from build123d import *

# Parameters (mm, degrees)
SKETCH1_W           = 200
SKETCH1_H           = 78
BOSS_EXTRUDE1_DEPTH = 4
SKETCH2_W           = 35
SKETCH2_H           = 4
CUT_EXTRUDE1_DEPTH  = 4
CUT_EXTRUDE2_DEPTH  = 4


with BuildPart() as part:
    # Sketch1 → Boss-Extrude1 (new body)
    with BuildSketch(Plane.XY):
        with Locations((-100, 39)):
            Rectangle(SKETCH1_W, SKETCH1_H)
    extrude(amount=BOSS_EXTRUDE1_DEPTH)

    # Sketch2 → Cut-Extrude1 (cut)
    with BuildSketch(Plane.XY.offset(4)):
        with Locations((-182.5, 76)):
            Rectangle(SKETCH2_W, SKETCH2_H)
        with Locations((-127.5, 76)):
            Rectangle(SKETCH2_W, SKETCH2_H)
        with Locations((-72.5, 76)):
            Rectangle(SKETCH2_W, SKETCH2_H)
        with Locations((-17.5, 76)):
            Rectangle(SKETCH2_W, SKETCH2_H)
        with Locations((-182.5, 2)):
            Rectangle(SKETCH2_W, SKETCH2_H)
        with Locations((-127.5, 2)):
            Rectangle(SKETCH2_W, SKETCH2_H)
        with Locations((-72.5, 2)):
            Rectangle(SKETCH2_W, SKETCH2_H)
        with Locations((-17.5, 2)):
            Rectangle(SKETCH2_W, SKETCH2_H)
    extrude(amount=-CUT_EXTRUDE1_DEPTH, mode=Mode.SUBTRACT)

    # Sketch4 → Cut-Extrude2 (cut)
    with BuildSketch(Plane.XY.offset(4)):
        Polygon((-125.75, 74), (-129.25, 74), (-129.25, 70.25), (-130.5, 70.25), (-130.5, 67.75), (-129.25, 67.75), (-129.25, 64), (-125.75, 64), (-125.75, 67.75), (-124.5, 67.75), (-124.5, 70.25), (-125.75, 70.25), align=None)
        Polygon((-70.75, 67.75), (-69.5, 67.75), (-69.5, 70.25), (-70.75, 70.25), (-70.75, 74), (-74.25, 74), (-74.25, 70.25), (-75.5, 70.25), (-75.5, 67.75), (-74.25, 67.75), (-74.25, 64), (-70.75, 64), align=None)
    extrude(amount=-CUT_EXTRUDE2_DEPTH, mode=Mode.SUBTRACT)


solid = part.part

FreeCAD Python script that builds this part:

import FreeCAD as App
import Part
import Sketcher

V = App.Vector


def add_polygon(sketch, points):
    """Adds a closed chain of lines whose ends are joined by coincident constraints."""
    first, n = sketch.GeometryCount, len(points)
    for a, b in zip(points, points[1:] + points[:1]):
        sketch.addGeometry(Part.LineSegment(App.Vector(*a, 0), App.Vector(*b, 0)), False)
    for i in range(n):
        sketch.addConstraint(Sketcher.Constraint("Coincident", first + i, 2, first + (i + 1) % n, 1))

doc = App.newDocument("Part")
params = doc.addObject("Spreadsheet::Sheet", "Params")
for row, (alias, value) in enumerate([
    ("sketch1_width", "200 mm"),
    ("sketch1_height", "78 mm"),
    ("pad1_length", "4 mm"),
    ("sketch2_width", "35 mm"),
    ("sketch2_height", "4 mm"),
    ("pocket1_length", "4 mm"),
    ("sketch3_width", "3.5 mm"),
    ("sketch3_height", "2.5 mm"),
    ("pocket2_length", "4 mm"),
], start=1):
    params.set(f"A{row}", alias)
    params.set(f"B{row}", "=" + value)
    params.setAlias(f"B{row}", alias)

body = doc.addObject("PartDesign::Body", "Body")

# Sketch on XY plane
sketch1 = body.newObject("Sketcher::SketchObject", "Sketch")
sketch1.AttachmentSupport = (doc.getObject("XY_Plane"), [""])
sketch1.MapMode = "FlatFace"
add_polygon(sketch1, [(-200, 78), (-200, 0), (0, 0), (0, 78)])  # lines 0-3
sketch1.addConstraint([
    Sketcher.Constraint("Vertical", 0),
    Sketcher.Constraint("Horizontal", 1),
    Sketcher.Constraint("Vertical", 2),
    Sketcher.Constraint("Horizontal", 3),
    Sketcher.Constraint("Coincident", 1, 2, -1, 1),
    Sketcher.Constraint("DistanceX", 1, 1, 1, 2, 200.0),
    Sketcher.Constraint("DistanceY", 0, 2, 0, 1, 78.0),
])
sketch1.setExpression("Constraints[9]", "Params.sketch1_width")
sketch1.setExpression("Constraints[10]", "Params.sketch1_height")
pad1 = body.newObject("PartDesign::Pad", "Pad")
pad1.Profile = sketch1
pad1.setExpression("Length", "Params.pad1_length")

# Sketch on XY plane
sketch2 = body.newObject("Sketcher::SketchObject", "Sketch001")
sketch2.AttachmentSupport = (doc.getObject("XY_Plane"), [""])
sketch2.MapMode = "FlatFace"
sketch2.AttachmentOffset = App.Placement(V(0, 0, 4), App.Rotation())
add_polygon(sketch2, [(-200, 78), (-200, 74), (-165, 74), (-165, 78)])  # lines 0-3
add_polygon(sketch2, [(-145, 78), (-145, 74), (-110, 74), (-110, 78)])  # lines 4-7
add_polygon(sketch2, [(-90, 78), (-90, 74), (-55, 74), (-55, 78)])  # lines 8-11
add_polygon(sketch2, [(-35, 78), (-35, 74), (0, 74), (0, 78)])  # lines 12-15
add_polygon(sketch2, [(-200, 4), (-200, 0), (-165, 0), (-165, 4)])  # lines 16-19
add_polygon(sketch2, [(-145, 4), (-145, 0), (-110, 0), (-110, 4)])  # lines 20-23
add_polygon(sketch2, [(-90, 4), (-90, 0), (-55, 0), (-55, 4)])  # lines 24-27
add_polygon(sketch2, [(-35, 4), (-35, 0), (0, 0), (0, 4)])  # lines 28-31
sketch2.addConstraint([
    Sketcher.Constraint("Vertical", 0),
    Sketcher.Constraint("Horizontal", 1),
    Sketcher.Constraint("Vertical", 2),
    Sketcher.Constraint("Horizontal", 3),
    Sketcher.Constraint("Vertical", 4),
    Sketcher.Constraint("Horizontal", 5),
    Sketcher.Constraint("Vertical", 6),
    Sketcher.Constraint("Horizontal", 7),
    Sketcher.Constraint("Vertical", 8),
    Sketcher.Constraint("Horizontal", 9),
    Sketcher.Constraint("Vertical", 10),
    Sketcher.Constraint("Horizontal", 11),
    Sketcher.Constraint("Vertical", 12),
    Sketcher.Constraint("Horizontal", 13),
    Sketcher.Constraint("Vertical", 14),
    Sketcher.Constraint("Horizontal", 15),
    Sketcher.Constraint("Vertical", 16),
    Sketcher.Constraint("Horizontal", 17),
    Sketcher.Constraint("Vertical", 18),
    Sketcher.Constraint("Horizontal", 19),
    Sketcher.Constraint("Vertical", 20),
    Sketcher.Constraint("Horizontal", 21),
    Sketcher.Constraint("Vertical", 22),
    Sketcher.Constraint("Horizontal", 23),
    Sketcher.Constraint("Vertical", 24),
    Sketcher.Constraint("Horizontal", 25),
    Sketcher.Constraint("Vertical", 26),
    Sketcher.Constraint("Horizontal", 27),
    Sketcher.Constraint("Vertical", 28),
    Sketcher.Constraint("Horizontal", 29),
    Sketcher.Constraint("Vertical", 30),
    Sketcher.Constraint("Horizontal", 31),
    Sketcher.Constraint("Coincident", 29, 2, -1, 1),
    Sketcher.Constraint("PointOnObject", 13, 2, -2),
    Sketcher.Constraint("PointOnObject", 16, 2, -1),
    Sketcher.Constraint("PointOnObject", 20, 2, -1),
    Sketcher.Constraint("PointOnObject", 24, 2, -1),
    Sketcher.Constraint("Horizontal", 1, 2, 4, 2),
    Sketcher.Constraint("Horizontal", 3, 2, 6, 2),
    Sketcher.Constraint("Horizontal", 5, 2, 8, 2),
    Sketcher.Constraint("Horizontal", 7, 2, 10, 2),
    Sketcher.Constraint("Horizontal", 9, 2, 12, 2),
    Sketcher.Constraint("Horizontal", 11, 2, 14, 2),
    Sketcher.Constraint("Horizontal", 19, 2, 22, 2),
    Sketcher.Constraint("Horizontal", 23, 2, 26, 2),
    Sketcher.Constraint("Horizontal", 27, 2, 30, 2),
    Sketcher.Constraint("Vertical", 3, 2, 16, 2),
    Sketcher.Constraint("Vertical", 2, 2, 17, 2),
    Sketcher.Constraint("Vertical", 7, 2, 20, 2),
    Sketcher.Constraint("Vertical", 6, 2, 21, 2),
    Sketcher.Constraint("Vertical", 11, 2, 24, 2),
    Sketcher.Constraint("Vertical", 10, 2, 25, 2),
    Sketcher.Constraint("Vertical", 15, 2, 28, 2),
    Sketcher.Constraint("Equal", 3, 5),
    Sketcher.Constraint("Equal", 7, 9),
    Sketcher.Constraint("Equal", 11, 13),
    Sketcher.Constraint("Equal", 14, 16),
    Sketcher.Constraint("DistanceX", 1, 1, 1, 2, 35.0),
    Sketcher.Constraint("DistanceY", 0, 2, 0, 1, 4.0),
    Sketcher.Constraint("DistanceX", 0, 2, -1, 1, 200.0),
    Sketcher.Constraint("DistanceY", -1, 1, 0, 2, 74.0),
    Sketcher.Constraint("DistanceX", 4, 2, -1, 1, 145.0),
    Sketcher.Constraint("DistanceX", 8, 2, -1, 1, 90.0),
])
sketch2.setExpression("Constraints[89]", "Params.sketch2_width")
sketch2.setExpression("Constraints[90]", "Params.sketch2_height")
pocket1 = body.newObject("PartDesign::Pocket", "Pocket")
pocket1.Profile = sketch2
pocket1.setExpression("Length", "Params.pocket1_length")

# Sketch on XY plane
sketch3 = body.newObject("Sketcher::SketchObject", "Sketch002")
sketch3.AttachmentSupport = (doc.getObject("XY_Plane"), [""])
sketch3.MapMode = "FlatFace"
sketch3.AttachmentOffset = App.Placement(V(0, 0, 4), App.Rotation())
add_polygon(sketch3, [(-125.8, 74), (-129.2, 74), (-129.2, 70.2), (-130.5, 70.2), (-130.5, 67.8), (-129.2, 67.8), (-129.2, 64), (-125.8, 64), (-125.8, 67.8), (-124.5, 67.8), (-124.5, 70.2), (-125.8, 70.2)])  # lines 0-11
add_polygon(sketch3, [(-70.8, 67.8), (-69.5, 67.8), (-69.5, 70.2), (-70.8, 70.2), (-70.8, 74), (-74.2, 74), (-74.2, 70.2), (-75.5, 70.2), (-75.5, 67.8), (-74.2, 67.8), (-74.2, 64), (-70.8, 64)])  # lines 12-23
sketch3.addConstraint([
    Sketcher.Constraint("Horizontal", 0),
    Sketcher.Constraint("Vertical", 1),
    Sketcher.Constraint("Horizontal", 2),
    Sketcher.Constraint("Vertical", 3),
    Sketcher.Constraint("Horizontal", 4),
    Sketcher.Constraint("Vertical", 5),
    Sketcher.Constraint("Horizontal", 6),
    Sketcher.Constraint("Vertical", 7),
    Sketcher.Constraint("Horizontal", 8),
    Sketcher.Constraint("Vertical", 9),
    Sketcher.Constraint("Horizontal", 10),
    Sketcher.Constraint("Vertical", 11),
    Sketcher.Constraint("Horizontal", 12),
    Sketcher.Constraint("Vertical", 13),
    Sketcher.Constraint("Horizontal", 14),
    Sketcher.Constraint("Vertical", 15),
    Sketcher.Constraint("Horizontal", 16),
    Sketcher.Constraint("Vertical", 17),
    Sketcher.Constraint("Horizontal", 18),
    Sketcher.Constraint("Vertical", 19),
    Sketcher.Constraint("Horizontal", 20),
    Sketcher.Constraint("Vertical", 21),
    Sketcher.Constraint("Horizontal", 22),
    Sketcher.Constraint("Vertical", 23),
    Sketcher.Constraint("Horizontal", 4, 2, 7, 2),
    Sketcher.Constraint("Horizontal", 2, 2, 9, 2),
    Sketcher.Constraint("Horizontal", 8, 2, 12, 2),
    Sketcher.Constraint("Horizontal", 10, 2, 13, 2),
    Sketcher.Constraint("Horizontal", 11, 2, 15, 2),
    Sketcher.Constraint("Horizontal", 14, 2, 17, 2),
    Sketcher.Constraint("Horizontal", 12, 2, 19, 2),
    Sketcher.Constraint("Horizontal", 6, 2, 21, 2),
    Sketcher.Constraint("Vertical", 1, 2, 4, 2),
    Sketcher.Constraint("Vertical", 7, 2, 10, 2),
    Sketcher.Constraint("Vertical", 17, 2, 20, 2),
    Sketcher.Constraint("Vertical", 15, 2, 22, 2),
    Sketcher.Constraint("Equal", 4, 8),
    Sketcher.Constraint("Equal", 10, 12),
    Sketcher.Constraint("Equal", 6, 16),
    Sketcher.Constraint("Equal", 14, 18),
    Sketcher.Constraint("Equal", 1, 5),
    Sketcher.Constraint("DistanceX", 0, 2, 0, 1, 3.5),
    Sketcher.Constraint("DistanceY", 3, 2, 3, 1, 2.5),
    Sketcher.Constraint("DistanceY", -1, 1, 0, 2, 74.0),
    Sketcher.Constraint("DistanceY", -1, 1, 5, 2, 64.0),
    Sketcher.Constraint("DistanceX", 3, 2, 8, 2, 6.0),
    Sketcher.Constraint("DistanceX", 8, 2, 12, 2, 55.0),
    Sketcher.Constraint("DistanceX", 2, 2, -1, 1, 130.5),
])
sketch3.setExpression("Constraints[65]", "Params.sketch3_width")
sketch3.setExpression("Constraints[66]", "Params.sketch3_height")
pocket2 = body.newObject("PartDesign::Pocket", "Pocket001")
pocket2.Profile = sketch3
pocket2.setExpression("Length", "Params.pocket2_length")

doc.recompute()
